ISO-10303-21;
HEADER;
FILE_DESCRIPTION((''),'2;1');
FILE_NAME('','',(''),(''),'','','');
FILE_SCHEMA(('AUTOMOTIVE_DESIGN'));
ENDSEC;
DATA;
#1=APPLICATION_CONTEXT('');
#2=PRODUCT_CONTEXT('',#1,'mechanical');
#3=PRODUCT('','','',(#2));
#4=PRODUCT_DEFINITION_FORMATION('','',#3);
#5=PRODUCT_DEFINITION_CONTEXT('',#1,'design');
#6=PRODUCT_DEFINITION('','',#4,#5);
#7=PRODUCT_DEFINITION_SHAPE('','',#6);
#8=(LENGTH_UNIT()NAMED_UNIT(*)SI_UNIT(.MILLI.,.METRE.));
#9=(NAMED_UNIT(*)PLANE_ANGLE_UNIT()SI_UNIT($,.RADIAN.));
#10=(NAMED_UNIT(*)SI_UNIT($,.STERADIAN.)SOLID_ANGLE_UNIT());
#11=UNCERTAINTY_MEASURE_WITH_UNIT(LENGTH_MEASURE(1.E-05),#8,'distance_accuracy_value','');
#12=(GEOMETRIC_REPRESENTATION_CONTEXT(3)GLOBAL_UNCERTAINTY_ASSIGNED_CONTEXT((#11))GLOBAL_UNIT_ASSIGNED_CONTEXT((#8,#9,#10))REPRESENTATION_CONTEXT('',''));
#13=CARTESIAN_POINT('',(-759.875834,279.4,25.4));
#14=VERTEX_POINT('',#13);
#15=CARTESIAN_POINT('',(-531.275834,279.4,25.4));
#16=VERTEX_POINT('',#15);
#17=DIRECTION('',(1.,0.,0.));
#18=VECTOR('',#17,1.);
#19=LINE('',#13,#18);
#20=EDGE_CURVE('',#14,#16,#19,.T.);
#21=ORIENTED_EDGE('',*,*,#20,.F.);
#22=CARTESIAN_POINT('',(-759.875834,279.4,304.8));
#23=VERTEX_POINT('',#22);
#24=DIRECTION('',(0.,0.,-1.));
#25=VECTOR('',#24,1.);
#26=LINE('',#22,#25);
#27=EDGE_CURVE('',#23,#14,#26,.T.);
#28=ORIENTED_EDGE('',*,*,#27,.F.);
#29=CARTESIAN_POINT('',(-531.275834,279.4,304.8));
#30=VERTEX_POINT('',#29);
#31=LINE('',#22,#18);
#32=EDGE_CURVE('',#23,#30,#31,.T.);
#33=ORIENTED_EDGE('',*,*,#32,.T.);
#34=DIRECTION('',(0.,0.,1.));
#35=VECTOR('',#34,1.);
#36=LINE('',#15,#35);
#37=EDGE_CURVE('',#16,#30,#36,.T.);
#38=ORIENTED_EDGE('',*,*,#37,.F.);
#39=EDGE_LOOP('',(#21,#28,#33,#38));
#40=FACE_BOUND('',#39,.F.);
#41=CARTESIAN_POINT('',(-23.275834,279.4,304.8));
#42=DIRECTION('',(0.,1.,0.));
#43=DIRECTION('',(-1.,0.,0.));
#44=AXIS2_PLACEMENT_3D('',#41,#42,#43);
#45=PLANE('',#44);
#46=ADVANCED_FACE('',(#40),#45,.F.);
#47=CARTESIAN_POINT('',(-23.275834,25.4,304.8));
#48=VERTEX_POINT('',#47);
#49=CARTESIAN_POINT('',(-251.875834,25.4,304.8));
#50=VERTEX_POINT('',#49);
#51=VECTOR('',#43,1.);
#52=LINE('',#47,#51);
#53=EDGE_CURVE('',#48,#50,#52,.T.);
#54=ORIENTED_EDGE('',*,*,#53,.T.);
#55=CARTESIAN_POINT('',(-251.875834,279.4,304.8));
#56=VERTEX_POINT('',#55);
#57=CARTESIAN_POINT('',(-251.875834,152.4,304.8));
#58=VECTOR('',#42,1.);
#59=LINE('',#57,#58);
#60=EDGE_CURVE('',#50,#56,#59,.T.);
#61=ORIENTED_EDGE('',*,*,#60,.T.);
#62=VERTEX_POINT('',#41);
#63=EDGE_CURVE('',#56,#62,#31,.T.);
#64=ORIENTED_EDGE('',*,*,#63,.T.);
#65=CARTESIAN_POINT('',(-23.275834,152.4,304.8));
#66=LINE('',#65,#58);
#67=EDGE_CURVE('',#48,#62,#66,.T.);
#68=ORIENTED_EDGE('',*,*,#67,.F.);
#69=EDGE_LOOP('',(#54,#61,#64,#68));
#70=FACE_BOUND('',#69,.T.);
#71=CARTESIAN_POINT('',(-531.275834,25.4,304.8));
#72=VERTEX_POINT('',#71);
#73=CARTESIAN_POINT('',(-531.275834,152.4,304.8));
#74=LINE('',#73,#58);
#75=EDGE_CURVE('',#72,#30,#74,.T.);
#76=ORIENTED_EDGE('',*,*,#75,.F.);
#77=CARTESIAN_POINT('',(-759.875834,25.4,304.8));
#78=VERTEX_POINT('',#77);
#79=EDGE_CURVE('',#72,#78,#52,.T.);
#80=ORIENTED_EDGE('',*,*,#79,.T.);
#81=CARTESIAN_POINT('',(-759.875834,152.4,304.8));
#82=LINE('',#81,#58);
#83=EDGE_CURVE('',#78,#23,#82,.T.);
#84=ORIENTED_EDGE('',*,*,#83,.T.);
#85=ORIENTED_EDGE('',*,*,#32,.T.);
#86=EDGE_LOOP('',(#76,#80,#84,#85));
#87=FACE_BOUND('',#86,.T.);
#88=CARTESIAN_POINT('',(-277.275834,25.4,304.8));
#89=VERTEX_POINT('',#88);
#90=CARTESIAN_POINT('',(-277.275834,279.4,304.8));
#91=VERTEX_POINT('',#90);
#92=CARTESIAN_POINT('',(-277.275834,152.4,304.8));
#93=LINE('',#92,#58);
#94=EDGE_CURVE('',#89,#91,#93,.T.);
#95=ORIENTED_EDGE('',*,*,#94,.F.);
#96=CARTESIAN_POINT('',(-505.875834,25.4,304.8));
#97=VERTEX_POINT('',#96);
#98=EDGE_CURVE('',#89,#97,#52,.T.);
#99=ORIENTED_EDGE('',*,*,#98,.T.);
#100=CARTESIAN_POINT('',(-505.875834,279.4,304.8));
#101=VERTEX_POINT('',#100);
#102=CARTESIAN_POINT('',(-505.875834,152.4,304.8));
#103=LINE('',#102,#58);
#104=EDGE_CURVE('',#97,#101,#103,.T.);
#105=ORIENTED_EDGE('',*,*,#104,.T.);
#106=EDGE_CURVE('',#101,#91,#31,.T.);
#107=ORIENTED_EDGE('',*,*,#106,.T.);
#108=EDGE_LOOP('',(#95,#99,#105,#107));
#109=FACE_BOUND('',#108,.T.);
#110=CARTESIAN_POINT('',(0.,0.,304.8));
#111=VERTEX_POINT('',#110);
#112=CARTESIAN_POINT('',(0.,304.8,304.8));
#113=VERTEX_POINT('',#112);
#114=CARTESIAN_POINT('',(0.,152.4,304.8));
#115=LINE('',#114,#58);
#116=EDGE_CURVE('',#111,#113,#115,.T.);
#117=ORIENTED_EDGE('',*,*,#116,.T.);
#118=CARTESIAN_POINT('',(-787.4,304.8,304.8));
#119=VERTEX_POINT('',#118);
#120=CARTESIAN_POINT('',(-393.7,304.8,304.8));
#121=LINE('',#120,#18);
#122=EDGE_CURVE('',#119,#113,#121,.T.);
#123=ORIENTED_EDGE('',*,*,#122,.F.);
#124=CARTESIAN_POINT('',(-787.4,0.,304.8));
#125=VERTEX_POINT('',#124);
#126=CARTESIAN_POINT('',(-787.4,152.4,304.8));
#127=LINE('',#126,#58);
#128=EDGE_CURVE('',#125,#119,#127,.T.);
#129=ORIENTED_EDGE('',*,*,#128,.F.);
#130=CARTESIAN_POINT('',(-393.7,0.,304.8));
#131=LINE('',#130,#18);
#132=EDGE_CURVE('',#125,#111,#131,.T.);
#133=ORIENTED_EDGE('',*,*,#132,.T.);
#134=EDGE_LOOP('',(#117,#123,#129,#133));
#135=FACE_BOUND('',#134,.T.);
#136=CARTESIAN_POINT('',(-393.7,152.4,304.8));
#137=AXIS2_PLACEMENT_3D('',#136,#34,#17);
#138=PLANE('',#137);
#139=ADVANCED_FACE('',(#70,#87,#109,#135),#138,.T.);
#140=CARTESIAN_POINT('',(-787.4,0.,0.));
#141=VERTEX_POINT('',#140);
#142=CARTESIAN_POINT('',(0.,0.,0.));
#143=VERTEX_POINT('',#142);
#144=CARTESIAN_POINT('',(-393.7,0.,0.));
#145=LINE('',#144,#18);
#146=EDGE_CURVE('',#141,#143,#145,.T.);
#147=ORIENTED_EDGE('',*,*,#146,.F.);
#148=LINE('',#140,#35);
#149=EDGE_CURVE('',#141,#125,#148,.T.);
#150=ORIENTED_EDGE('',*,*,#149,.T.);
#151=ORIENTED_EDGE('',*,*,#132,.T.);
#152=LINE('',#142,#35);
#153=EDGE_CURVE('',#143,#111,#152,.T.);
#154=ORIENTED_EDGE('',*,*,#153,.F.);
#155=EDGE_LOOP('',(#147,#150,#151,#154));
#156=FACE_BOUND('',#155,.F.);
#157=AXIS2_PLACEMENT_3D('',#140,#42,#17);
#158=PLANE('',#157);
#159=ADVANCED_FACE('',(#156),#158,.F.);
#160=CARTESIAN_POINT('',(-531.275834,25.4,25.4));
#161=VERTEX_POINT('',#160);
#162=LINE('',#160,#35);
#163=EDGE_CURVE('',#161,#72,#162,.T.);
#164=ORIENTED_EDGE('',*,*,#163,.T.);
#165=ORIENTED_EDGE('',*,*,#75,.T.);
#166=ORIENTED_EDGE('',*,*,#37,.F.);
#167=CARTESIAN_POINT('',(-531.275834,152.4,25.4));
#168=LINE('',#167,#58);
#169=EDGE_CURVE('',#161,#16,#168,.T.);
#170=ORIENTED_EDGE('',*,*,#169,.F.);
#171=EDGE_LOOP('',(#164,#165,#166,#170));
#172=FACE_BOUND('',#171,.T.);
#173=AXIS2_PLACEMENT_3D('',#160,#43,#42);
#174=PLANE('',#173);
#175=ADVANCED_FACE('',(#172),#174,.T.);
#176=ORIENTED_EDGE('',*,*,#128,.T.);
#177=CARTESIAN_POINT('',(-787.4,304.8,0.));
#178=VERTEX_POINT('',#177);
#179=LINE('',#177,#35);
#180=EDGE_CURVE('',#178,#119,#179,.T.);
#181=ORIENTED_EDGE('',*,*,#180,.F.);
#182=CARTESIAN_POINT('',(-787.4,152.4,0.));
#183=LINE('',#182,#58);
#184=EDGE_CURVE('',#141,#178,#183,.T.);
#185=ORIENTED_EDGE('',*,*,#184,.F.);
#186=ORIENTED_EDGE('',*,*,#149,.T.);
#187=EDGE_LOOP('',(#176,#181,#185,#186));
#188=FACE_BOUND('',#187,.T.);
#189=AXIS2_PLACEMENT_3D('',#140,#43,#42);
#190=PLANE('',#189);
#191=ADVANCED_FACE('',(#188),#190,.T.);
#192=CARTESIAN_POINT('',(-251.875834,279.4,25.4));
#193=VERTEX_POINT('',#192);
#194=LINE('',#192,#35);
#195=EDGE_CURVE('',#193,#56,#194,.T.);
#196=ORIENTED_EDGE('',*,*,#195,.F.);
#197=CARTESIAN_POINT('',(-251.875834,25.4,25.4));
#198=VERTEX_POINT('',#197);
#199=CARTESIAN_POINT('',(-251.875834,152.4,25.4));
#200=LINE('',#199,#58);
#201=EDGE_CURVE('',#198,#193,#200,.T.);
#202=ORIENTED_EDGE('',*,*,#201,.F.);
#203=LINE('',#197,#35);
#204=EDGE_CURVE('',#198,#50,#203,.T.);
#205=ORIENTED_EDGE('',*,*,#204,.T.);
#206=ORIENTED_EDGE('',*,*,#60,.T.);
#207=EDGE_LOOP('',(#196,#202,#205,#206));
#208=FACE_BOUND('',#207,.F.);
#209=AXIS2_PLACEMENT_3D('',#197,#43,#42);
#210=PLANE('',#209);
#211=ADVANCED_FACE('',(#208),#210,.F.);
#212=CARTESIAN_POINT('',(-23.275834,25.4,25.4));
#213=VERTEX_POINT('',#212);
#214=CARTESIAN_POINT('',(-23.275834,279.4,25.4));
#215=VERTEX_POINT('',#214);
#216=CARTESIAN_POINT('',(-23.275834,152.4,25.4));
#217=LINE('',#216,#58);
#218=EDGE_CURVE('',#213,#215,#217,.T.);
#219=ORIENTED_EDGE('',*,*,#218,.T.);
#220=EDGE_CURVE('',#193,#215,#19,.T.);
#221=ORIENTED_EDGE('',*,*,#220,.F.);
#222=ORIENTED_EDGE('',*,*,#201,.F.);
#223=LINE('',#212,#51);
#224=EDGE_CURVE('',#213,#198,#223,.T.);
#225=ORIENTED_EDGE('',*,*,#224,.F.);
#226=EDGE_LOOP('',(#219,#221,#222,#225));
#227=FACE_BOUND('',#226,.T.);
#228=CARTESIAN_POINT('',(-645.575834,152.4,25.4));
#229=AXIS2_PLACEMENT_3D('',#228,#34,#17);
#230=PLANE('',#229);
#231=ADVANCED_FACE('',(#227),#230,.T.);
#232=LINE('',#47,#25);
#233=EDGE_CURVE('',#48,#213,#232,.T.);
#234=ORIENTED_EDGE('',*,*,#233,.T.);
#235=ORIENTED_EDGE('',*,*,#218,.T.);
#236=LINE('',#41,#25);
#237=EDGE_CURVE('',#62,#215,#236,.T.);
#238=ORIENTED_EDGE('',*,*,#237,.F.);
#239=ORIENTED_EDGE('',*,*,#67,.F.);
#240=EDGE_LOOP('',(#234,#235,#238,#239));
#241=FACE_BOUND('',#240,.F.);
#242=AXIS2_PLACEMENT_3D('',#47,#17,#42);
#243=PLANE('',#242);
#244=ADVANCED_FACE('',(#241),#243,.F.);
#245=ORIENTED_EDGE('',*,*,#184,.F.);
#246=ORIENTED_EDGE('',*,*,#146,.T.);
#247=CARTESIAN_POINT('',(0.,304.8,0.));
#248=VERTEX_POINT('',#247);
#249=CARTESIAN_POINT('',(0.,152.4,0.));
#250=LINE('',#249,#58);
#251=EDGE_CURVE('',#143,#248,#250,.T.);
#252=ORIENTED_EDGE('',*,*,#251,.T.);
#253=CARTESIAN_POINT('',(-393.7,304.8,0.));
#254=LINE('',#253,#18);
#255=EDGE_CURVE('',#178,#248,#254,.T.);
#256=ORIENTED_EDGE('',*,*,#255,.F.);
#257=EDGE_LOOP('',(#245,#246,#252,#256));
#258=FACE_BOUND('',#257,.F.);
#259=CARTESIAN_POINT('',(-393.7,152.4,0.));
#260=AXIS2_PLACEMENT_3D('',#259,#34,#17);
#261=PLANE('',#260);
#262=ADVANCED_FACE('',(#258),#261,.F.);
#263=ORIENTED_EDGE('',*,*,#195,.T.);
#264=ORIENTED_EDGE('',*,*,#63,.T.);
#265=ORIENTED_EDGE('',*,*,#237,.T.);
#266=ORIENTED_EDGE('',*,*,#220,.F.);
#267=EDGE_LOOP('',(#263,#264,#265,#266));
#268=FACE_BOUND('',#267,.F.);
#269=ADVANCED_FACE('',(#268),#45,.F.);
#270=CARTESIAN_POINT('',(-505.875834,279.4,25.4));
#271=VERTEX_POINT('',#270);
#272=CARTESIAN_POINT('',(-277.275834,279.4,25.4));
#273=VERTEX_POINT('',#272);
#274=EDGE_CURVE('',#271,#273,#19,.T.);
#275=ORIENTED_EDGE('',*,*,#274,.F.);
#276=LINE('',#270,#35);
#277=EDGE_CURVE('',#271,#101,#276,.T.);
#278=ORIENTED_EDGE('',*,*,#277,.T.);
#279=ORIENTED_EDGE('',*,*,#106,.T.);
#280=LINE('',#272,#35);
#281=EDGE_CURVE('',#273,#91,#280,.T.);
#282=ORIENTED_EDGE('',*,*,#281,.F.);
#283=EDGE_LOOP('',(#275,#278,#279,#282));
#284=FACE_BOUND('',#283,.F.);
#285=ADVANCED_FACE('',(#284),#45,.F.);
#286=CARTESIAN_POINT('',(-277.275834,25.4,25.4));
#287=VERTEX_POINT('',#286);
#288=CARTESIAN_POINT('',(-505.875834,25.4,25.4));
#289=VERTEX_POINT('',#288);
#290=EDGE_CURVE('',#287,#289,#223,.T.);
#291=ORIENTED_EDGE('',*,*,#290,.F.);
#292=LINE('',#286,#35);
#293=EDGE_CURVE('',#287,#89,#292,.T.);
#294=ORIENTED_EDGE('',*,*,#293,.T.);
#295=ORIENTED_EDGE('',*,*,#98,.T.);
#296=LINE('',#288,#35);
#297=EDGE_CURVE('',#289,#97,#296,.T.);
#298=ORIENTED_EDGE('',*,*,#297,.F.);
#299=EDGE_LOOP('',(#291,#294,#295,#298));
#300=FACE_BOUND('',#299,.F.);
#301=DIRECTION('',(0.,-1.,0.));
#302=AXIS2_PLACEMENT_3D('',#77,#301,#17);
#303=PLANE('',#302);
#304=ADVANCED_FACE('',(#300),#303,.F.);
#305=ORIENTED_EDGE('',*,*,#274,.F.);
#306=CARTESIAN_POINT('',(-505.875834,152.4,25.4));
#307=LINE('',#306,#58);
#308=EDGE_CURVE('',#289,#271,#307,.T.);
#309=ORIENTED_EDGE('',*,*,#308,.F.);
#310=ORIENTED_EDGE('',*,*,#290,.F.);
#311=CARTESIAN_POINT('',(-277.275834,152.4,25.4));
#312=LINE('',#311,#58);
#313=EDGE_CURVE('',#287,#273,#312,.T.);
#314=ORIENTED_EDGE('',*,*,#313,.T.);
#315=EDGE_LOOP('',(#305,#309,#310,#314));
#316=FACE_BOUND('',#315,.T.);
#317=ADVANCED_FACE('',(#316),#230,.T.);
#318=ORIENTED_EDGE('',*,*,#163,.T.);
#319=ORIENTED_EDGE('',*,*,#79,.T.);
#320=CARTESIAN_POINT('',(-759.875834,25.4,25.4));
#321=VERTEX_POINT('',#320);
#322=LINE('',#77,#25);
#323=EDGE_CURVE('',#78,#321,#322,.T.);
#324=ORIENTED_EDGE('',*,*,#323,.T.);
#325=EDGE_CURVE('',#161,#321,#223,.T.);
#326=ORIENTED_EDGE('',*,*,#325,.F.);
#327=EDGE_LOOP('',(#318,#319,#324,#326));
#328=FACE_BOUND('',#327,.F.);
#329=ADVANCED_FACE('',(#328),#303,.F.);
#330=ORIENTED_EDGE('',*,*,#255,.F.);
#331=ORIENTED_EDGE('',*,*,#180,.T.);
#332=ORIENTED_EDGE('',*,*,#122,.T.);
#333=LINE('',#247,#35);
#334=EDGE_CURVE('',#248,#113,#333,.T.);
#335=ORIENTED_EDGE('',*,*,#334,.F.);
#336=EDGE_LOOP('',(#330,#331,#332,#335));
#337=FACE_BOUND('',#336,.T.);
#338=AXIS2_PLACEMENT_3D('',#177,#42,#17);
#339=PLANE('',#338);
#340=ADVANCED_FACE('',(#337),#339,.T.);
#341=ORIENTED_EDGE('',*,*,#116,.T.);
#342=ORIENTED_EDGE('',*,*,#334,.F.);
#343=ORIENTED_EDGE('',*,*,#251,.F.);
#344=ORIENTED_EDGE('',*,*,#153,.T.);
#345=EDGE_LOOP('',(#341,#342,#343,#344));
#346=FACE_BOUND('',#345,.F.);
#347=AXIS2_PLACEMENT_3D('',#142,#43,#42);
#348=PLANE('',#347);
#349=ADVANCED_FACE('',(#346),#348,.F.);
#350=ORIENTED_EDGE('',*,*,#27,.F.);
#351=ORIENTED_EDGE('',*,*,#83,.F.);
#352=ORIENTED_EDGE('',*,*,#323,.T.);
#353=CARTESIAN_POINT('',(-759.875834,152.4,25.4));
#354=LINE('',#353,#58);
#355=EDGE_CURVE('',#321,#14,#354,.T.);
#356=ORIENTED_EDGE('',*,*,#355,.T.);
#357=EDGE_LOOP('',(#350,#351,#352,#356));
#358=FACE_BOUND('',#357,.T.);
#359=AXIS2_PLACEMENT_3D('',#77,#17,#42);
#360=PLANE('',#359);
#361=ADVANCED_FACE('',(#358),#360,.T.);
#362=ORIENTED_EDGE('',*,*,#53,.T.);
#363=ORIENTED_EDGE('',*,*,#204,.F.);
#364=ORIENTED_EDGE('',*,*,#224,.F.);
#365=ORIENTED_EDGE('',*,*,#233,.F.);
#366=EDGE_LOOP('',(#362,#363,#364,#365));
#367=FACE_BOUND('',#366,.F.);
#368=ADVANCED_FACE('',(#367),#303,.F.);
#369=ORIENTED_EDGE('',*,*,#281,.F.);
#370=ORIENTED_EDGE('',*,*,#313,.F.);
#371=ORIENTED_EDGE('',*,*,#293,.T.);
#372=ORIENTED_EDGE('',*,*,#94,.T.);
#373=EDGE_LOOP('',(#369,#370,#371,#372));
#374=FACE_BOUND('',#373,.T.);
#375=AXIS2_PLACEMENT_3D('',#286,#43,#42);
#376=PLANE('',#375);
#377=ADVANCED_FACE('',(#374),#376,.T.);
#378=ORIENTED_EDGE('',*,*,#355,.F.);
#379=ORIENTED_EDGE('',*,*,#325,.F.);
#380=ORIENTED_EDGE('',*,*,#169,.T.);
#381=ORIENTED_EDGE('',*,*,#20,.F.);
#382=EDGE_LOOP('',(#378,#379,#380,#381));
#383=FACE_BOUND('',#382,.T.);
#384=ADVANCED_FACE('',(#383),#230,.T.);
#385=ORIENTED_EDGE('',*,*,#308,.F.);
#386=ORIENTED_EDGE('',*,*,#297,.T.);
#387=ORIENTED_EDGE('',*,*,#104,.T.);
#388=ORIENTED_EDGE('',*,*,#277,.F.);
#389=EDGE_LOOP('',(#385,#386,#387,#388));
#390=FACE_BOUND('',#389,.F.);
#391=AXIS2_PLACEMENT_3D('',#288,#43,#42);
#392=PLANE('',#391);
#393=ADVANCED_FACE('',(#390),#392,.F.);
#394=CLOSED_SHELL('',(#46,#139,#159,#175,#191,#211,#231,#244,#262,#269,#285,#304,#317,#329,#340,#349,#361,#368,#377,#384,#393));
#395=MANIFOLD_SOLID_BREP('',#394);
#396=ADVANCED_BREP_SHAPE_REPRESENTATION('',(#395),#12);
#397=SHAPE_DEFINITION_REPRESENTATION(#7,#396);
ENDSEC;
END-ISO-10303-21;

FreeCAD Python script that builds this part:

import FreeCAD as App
import Part
import Sketcher

V = App.Vector
Q = App.Units.Quantity

doc = App.newDocument("Part")
params = doc.addObject("Spreadsheet::Sheet", "Params")
for row, (alias, value) in enumerate([
    ("sketch1_width", "31 in"),
    ("sketch1_height", "12 in"),
    ("pad1_length", "12 in"),
    ("sketch2_width", "29 in"),
    ("sketch2_height", "10 in"),
    ("pocket1_length", "11 in"),
    ("sketch3_width", "20 in"),
    ("sketch3_height", "10 in"),
    ("pocket2_length", "11 in"),
    ("sketch4_width", "1 in"),
    ("sketch4_height", "10 in"),
    ("pad2_length", "11 in"),
    ("sketch5_width", "1 in"),
    ("sketch5_height", "10 in"),
    ("pad3_length", "11 in"),
], start=1):
    params.set(f"A{row}", alias)
    params.set(f"B{row}", "=" + value)
    params.setAlias(f"B{row}", alias)

body = doc.addObject("PartDesign::Body", "Body")

# Sketch on XY plane
sketch1 = body.newObject("Sketcher::SketchObject", "Sketch")
sketch1.AttachmentSupport = (doc.getObject("XY_Plane"), [""])
sketch1.MapMode = "FlatFace"
sketch1.addGeometry([
    Part.LineSegment(V(-787, 305, 0), V(-787, 0, 0)),
    Part.LineSegment(V(-787, 0, 0), V(0, 0, 0)),
    Part.LineSegment(V(0, 0, 0), V(0, 305, 0)),
    Part.LineSegment(V(0, 305, 0), V(-787, 305, 0)),
], False)
sketch1.addConstraint([
    Sketcher.Constraint("Coincident", 0, 2, 1, 1),
    Sketcher.Constraint("Coincident", 1, 2, 2, 1),
    Sketcher.Constraint("Coincident", 2, 2, 3, 1),
    Sketcher.Constraint("Coincident", 3, 2, 0, 1),
    Sketcher.Constraint("Vertical", 0),
    Sketcher.Constraint("Horizontal", 1),
    Sketcher.Constraint("Vertical", 2),
    Sketcher.Constraint("Horizontal", 3),
    Sketcher.Constraint("Coincident", 1, 2, -1, 1),
    Sketcher.Constraint("DistanceX", 1, 1, 1, 2, Q("31 in")),
    Sketcher.Constraint("DistanceY", 0, 2, 0, 1, Q("12 in")),
])
sketch1.setExpression("Constraints[9]", "Params.sketch1_width")
sketch1.setExpression("Constraints[10]", "Params.sketch1_height")
pad1 = body.newObject("PartDesign::Pad", "Pad")
pad1.Profile = sketch1
pad1.setExpression("Length", "Params.pad1_length")

# Sketch on XY plane
sketch2 = body.newObject("Sketcher::SketchObject", "Sketch001")
sketch2.AttachmentSupport = (doc.getObject("XY_Plane"), [""])
sketch2.MapMode = "FlatFace"
sketch2.AttachmentOffset = App.Placement(V(0, 0, 12 * 25.4), App.Rotation())
sketch2.addGeometry([
    Part.LineSegment(V(-760, 279, 0), V(-760, 25, 0)),
    Part.LineSegment(V(-760, 25, 0), V(-23, 25, 0)),
    Part.LineSegment(V(-23, 25, 0), V(-23, 279, 0)),
    Part.LineSegment(V(-23, 279, 0), V(-760, 279, 0)),
], False)
sketch2.addConstraint([
    Sketcher.Constraint("Coincident", 0, 2, 1, 1),
    Sketcher.Constraint("Coincident", 1, 2, 2, 1),
    Sketcher.Constraint("Coincident", 2, 2, 3, 1),
    Sketcher.Constraint("Coincident", 3, 2, 0, 1),
    Sketcher.Constraint("Vertical", 0),
    Sketcher.Constraint("Horizontal", 1),
    Sketcher.Constraint("Vertical", 2),
    Sketcher.Constraint("Horizontal", 3),
    Sketcher.Constraint("DistanceX", 1, 1, 1, 2, Q("29 in")),
    Sketcher.Constraint("DistanceY", 0, 2, 0, 1, Q("10 in")),
    Sketcher.Constraint("DistanceY", -1, 1, 0, 2, Q("1 in")),
    Sketcher.Constraint("DistanceX", 0, 2, -1, 1, 759.875834),
])
sketch2.setExpression("Constraints[8]", "Params.sketch2_width")
sketch2.setExpression("Constraints[9]", "Params.sketch2_height")
pocket1 = body.newObject("PartDesign::Pocket", "Pocket")
pocket1.Profile = sketch2
pocket1.setExpression("Length", "Params.pocket1_length")

# Sketch on XY plane
sketch3 = body.newObject("Sketcher::SketchObject", "Sketch002")
sketch3.AttachmentSupport = (doc.getObject("XY_Plane"), [""])
sketch3.MapMode = "FlatFace"
sketch3.AttachmentOffset = App.Placement(V(0, 0, 12 * 25.4), App.Rotation())
sketch3.addGeometry([
    Part.LineSegment(V(-531, 279, 0), V(-531, 25, 0)),
    Part.LineSegment(V(-531, 25, 0), V(-23, 25, 0)),
    Part.LineSegment(V(-23, 25, 0), V(-23, 279, 0)),
    Part.LineSegment(V(-23, 279, 0), V(-531, 279, 0)),
], False)
sketch3.addConstraint([
    Sketcher.Constraint("Coincident", 0, 2, 1, 1),
    Sketcher.Constraint("Coincident", 1, 2, 2, 1),
    Sketcher.Constraint("Coincident", 2, 2, 3, 1),
    Sketcher.Constraint("Coincident", 3, 2, 0, 1),
    Sketcher.Constraint("Vertical", 0),
    Sketcher.Constraint("Horizontal", 1),
    Sketcher.Constraint("Vertical", 2),
    Sketcher.Constraint("Horizontal", 3),
    Sketcher.Constraint("DistanceX", 1, 1, 1, 2, Q("20 in")),
    Sketcher.Constraint("DistanceY", 0, 2, 0, 1, Q("10 in")),
    Sketcher.Constraint("DistanceY", -1, 1, 0, 2, Q("1 in")),
    Sketcher.Constraint("DistanceX", 0, 2, -1, 1, 531.275834),
])
sketch3.setExpression("Constraints[8]", "Params.sketch3_width")
sketch3.setExpression("Constraints[9]", "Params.sketch3_height")
pocket2 = body.newObject("PartDesign::Pocket", "Pocket001")
pocket2.Profile = sketch3
pocket2.setExpression("Length", "Params.pocket2_length")

# Sketch on XY plane
sketch4 = body.newObject("Sketcher::SketchObject", "Sketch003")
sketch4.AttachmentSupport = (doc.getObject("XY_Plane"), [""])
sketch4.MapMode = "FlatFace"
sketch4.AttachmentOffset = App.Placement(V(0, 0, 1 * 25.4), App.Rotation())
sketch4.addGeometry([
    Part.LineSegment(V(-531, 279, 0), V(-531, 25, 0)),
    Part.LineSegment(V(-531, 25, 0), V(-506, 25, 0)),
    Part.LineSegment(V(-506, 25, 0), V(-506, 279, 0)),
    Part.LineSegment(V(-506, 279, 0), V(-531, 279, 0)),
], False)
sketch4.addConstraint([
    Sketcher.Constraint("Coincident", 0, 2, 1, 1),
    Sketcher.Constraint("Coincident", 1, 2, 2, 1),
    Sketcher.Constraint("Coincident", 2, 2, 3, 1),
    Sketcher.Constraint("Coincident", 3, 2, 0, 1),
    Sketcher.Constraint("Vertical", 0),
    Sketcher.Constraint("Horizontal", 1),
    Sketcher.Constraint("Vertical", 2),
    Sketcher.Constraint("Horizontal", 3),
    Sketcher.Constraint("DistanceX", 1, 1, 1, 2, Q("1 in")),
    Sketcher.Constraint("DistanceY", 0, 2, 0, 1, Q("10 in")),
    Sketcher.Constraint("DistanceY", -1, 1, 0, 2, Q("1 in")),
    Sketcher.Constraint("DistanceX", 0, 2, -1, 1, 531.275834),
])
sketch4.setExpression("Constraints[8]", "Params.sketch4_width")
sketch4.setExpression("Constraints[9]", "Params.sketch4_height")
pad2 = body.newObject("PartDesign::Pad", "Pad001")
pad2.Profile = sketch4
pad2.setExpression("Length", "Params.pad2_length")

# Sketch on XY plane
sketch5 = body.newObject("Sketcher::SketchObject", "Sketch004")
sketch5.AttachmentSupport = (doc.getObject("XY_Plane"), [""])
sketch5.MapMode = "FlatFace"
sketch5.AttachmentOffset = App.Placement(V(0, 0, 1 * 25.4), App.Rotation())
sketch5.addGeometry([
    Part.LineSegment(V(-277, 279, 0), V(-277, 25, 0)),
    Part.LineSegment(V(-277, 25, 0), V(-252, 25, 0)),
    Part.LineSegment(V(-252, 25, 0), V(-252, 279, 0)),
    Part.LineSegment(V(-252, 279, 0), V(-277, 279, 0)),
], False)
sketch5.addConstraint([
    Sketcher.Constraint("Coincident", 0, 2, 1, 1),
    Sketcher.Constraint("Coincident", 1, 2, 2, 1),
    Sketcher.Constraint("Coincident", 2, 2, 3, 1),
    Sketcher.Constraint("Coincident", 3, 2, 0, 1),
    Sketcher.Constraint("Vertical", 0),
    Sketcher.Constraint("Horizontal", 1),
    Sketcher.Constraint("Vertical", 2),
    Sketcher.Constraint("Horizontal", 3),
    Sketcher.Constraint("DistanceX", 1, 1, 1, 2, Q("1 in")),
    Sketcher.Constraint("DistanceY", 0, 2, 0, 1, Q("10 in")),
    Sketcher.Constraint("DistanceY", -1, 1, 0, 2, Q("1 in")),
    Sketcher.Constraint("DistanceX", 0, 2, -1, 1, 277.275834),
])
sketch5.setExpression("Constraints[8]", "Params.sketch5_width")
sketch5.setExpression("Constraints[9]", "Params.sketch5_height")
pad3 = body.newObject("PartDesign::Pad", "Pad002")
pad3.Profile = sketch5
pad3.setExpression("Length", "Params.pad3_length")

doc.recompute()
